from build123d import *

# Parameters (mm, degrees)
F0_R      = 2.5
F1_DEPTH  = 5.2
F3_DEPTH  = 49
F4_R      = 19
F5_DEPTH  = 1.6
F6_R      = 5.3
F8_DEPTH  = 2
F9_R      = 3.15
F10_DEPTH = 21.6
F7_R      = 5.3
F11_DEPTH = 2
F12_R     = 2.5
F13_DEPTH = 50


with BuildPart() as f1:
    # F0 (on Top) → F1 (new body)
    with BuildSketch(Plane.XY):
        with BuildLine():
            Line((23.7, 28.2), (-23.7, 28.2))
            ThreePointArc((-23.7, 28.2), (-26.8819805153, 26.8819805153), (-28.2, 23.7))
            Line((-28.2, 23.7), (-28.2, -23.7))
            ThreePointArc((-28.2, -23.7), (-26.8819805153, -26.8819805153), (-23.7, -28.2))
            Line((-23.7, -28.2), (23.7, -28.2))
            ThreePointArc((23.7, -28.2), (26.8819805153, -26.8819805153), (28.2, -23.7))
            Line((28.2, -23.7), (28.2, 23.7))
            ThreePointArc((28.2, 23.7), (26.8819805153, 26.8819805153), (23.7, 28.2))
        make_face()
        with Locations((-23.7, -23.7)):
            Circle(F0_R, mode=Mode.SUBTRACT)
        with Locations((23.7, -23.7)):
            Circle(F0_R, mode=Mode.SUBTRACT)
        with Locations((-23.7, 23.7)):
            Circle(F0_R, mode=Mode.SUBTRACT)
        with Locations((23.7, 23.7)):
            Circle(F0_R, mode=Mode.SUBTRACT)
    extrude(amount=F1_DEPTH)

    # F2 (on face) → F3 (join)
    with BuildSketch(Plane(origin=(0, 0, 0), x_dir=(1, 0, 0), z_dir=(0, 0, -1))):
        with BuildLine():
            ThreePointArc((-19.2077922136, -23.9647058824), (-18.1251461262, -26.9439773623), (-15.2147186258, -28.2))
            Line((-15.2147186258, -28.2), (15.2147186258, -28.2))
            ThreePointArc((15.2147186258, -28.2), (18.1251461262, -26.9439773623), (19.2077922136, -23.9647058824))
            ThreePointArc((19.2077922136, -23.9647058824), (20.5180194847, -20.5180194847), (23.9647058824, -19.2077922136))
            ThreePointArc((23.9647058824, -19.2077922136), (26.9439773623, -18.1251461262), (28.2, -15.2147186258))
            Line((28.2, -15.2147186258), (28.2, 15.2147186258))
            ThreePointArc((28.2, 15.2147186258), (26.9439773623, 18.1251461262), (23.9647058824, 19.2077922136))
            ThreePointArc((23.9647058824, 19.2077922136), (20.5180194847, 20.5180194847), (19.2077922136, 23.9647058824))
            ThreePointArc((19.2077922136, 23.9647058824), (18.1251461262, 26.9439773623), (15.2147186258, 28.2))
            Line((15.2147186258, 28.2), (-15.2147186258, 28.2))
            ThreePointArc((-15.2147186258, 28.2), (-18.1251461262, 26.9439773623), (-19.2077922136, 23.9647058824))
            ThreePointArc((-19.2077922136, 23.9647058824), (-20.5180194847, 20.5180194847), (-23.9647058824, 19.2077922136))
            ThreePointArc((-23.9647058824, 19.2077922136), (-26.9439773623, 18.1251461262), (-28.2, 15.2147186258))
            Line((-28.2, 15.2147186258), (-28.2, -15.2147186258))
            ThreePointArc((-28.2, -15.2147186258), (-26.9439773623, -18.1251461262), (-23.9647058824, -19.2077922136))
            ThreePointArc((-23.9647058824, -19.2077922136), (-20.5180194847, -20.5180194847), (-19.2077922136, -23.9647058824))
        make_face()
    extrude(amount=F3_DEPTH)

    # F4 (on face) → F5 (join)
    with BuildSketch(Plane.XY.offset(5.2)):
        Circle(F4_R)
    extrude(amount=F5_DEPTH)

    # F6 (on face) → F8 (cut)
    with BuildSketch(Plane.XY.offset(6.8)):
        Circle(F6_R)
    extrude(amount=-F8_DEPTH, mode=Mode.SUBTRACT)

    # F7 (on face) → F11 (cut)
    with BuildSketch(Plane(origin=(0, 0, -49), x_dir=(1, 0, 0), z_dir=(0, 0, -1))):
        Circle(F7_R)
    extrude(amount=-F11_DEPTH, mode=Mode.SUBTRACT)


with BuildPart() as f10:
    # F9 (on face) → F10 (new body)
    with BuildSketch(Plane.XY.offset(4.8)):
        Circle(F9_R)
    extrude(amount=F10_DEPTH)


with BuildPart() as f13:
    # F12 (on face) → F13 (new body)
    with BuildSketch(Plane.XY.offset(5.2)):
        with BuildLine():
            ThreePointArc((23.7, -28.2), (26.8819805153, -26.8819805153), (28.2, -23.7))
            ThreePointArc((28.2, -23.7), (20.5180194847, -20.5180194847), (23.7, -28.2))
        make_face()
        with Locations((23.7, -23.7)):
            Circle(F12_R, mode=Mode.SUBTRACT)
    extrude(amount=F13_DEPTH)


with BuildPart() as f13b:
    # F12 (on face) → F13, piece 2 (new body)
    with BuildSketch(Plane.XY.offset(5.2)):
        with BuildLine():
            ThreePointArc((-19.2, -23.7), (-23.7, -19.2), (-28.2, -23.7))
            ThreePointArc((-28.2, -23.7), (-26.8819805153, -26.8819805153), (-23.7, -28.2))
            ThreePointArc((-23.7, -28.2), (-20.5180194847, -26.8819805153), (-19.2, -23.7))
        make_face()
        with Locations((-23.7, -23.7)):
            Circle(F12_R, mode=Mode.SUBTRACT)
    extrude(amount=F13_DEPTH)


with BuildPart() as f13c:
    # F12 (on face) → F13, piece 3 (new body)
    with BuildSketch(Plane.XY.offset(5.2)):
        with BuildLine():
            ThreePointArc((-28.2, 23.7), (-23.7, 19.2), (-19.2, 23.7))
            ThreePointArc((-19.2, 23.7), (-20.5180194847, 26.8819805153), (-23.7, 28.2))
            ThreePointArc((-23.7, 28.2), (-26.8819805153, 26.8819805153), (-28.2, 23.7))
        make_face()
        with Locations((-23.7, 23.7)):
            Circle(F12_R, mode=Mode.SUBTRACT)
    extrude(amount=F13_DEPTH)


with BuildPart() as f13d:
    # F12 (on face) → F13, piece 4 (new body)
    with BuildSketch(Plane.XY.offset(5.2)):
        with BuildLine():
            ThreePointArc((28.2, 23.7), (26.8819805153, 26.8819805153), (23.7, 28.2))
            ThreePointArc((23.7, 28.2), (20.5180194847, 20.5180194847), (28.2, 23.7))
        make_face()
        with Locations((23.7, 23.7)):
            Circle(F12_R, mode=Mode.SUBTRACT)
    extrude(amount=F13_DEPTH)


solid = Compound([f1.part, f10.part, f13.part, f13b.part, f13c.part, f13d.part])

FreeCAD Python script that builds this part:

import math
import FreeCAD as App
import Part
import Sketcher

V = App.Vector
Q = App.Units.Quantity

doc = App.newDocument("Part")
body = doc.addObject("PartDesign::Body", "Body")

sketch1 = doc.addObject("Sketcher::SketchObject", "Sketch")
body.addObject(sketch1)
sketch1.AttachmentSupport = (doc.XY_Plane, [""])
sketch1.MapMode = "FlatFace"
sketch1.addGeometry(Part.LineSegment(V(23.7, 28.2, 0), V(-23.7, 28.2, 0)), False)
sketch1.addGeometry(Part.ArcOfCircle(Part.Circle(V(-23.7, 23.7, 0), V(0, 0, 1), 4.5), math.radians(90), math.radians(180)), False)
sketch1.addGeometry(Part.LineSegment(V(-28.2, 23.7, 0), V(-28.2, -23.7, 0)), False)
sketch1.addGeometry(Part.ArcOfCircle(Part.Circle(V(-23.7, -23.7, 0), V(0, 0, 1), 4.5), math.radians(180), math.radians(270)), False)
sketch1.addGeometry(Part.LineSegment(V(-23.7, -28.2, 0), V(23.7, -28.2, 0)), False)
sketch1.addGeometry(Part.ArcOfCircle(Part.Circle(V(23.7, -23.7, 0), V(0, 0, 1), 4.5), math.radians(-90), math.radians(0)), False)
sketch1.addGeometry(Part.LineSegment(V(28.2, -23.7, 0), V(28.2, 23.7, 0)), False)
sketch1.addGeometry(Part.ArcOfCircle(Part.Circle(V(23.7, 23.7, 0), V(0, 0, 1), 4.5), math.radians(0), math.radians(90)), False)
sketch1.addGeometry(Part.Circle(V(-23.7, -23.7, 0), V(0, 0, 1), 2.5), False)
sketch1.addGeometry(Part.Circle(V(23.7, -23.7, 0), V(0, 0, 1), 2.5), False)
sketch1.addGeometry(Part.Circle(V(-23.7, 23.7, 0), V(0, 0, 1), 2.5), False)
sketch1.addGeometry(Part.Circle(V(23.7, 23.7, 0), V(0, 0, 1), 2.5), False)
sketch1.addConstraint(Sketcher.Constraint("Tangent", 0, 2, 1, 1))
sketch1.addConstraint(Sketcher.Constraint("Tangent", 1, 2, 2, 1))
sketch1.addConstraint(Sketcher.Constraint("Tangent", 2, 2, 3, 1))
sketch1.addConstraint(Sketcher.Constraint("Tangent", 3, 2, 4, 1))
sketch1.addConstraint(Sketcher.Constraint("Tangent", 4, 2, 5, 1))
sketch1.addConstraint(Sketcher.Constraint("Tangent", 5, 2, 6, 1))
sketch1.addConstraint(Sketcher.Constraint("Tangent", 6, 2, 7, 1))
sketch1.addConstraint(Sketcher.Constraint("Tangent", 7, 2, 0, 1))
sketch1.addConstraint(Sketcher.Constraint("Horizontal", 0))
sketch1.addConstraint(Sketcher.Constraint("Vertical", 2))
sketch1.addConstraint(Sketcher.Constraint("Horizontal", 4))
sketch1.addConstraint(Sketcher.Constraint("Vertical", 6))
sketch1.addConstraint(Sketcher.Constraint("Coincident", 8, 3, 3, 3))
sketch1.addConstraint(Sketcher.Constraint("Coincident", 9, 3, 5, 3))
sketch1.addConstraint(Sketcher.Constraint("Coincident", 10, 3, 1, 3))
sketch1.addConstraint(Sketcher.Constraint("Coincident", 11, 3, 7, 3))
sketch1.addConstraint(Sketcher.Constraint("Equal", 1, 3))
sketch1.addConstraint(Sketcher.Constraint("Equal", 3, 5))
sketch1.addConstraint(Sketcher.Constraint("Equal", 5, 7))
sketch1.addConstraint(Sketcher.Constraint("Equal", 8, 9))
sketch1.addConstraint(Sketcher.Constraint("Equal", 9, 10))
sketch1.addConstraint(Sketcher.Constraint("Equal", 10, 11))
sketch1.addConstraint(Sketcher.Constraint("Symmetric", 1, 3, 5, 3, -1, 1))
sketch1.addConstraint(Sketcher.Constraint("Equal", 4, 2))
sketch1.addConstraint(Sketcher.Constraint("Diameter", 8, Q("5 mm")))
sketch1.addConstraint(Sketcher.Constraint("Radius", 1, Q("4.5 mm")))
sketch1.addConstraint(Sketcher.Constraint("DistanceX", 0, 2, 0, 1, Q("47.4 mm")))
pad1 = doc.addObject("PartDesign::Pad", "Pad")
body.addObject(pad1)
pad1.Profile = sketch1
pad1.Length = 5.2

sketch2 = doc.addObject("Sketcher::SketchObject", "Sketch001")
body.addObject(sketch2)
sketch2.AttachmentSupport = (doc.XY_Plane, [""])
sketch2.MapMode = "FlatFace"
sketch2.addGeometry(Part.ArcOfCircle(Part.Circle(V(-15.214719, 24.2, 0), V(0, 0, 1), 4), math.radians(90), math.radians(183.372287)), False)
sketch2.addGeometry(Part.LineSegment(V(-15.214719, 28.2, 0), V(15.214719, 28.2, 0)), False)
sketch2.addGeometry(Part.ArcOfCircle(Part.Circle(V(15.214719, 24.2, 0), V(0, 0, 1), 4), math.radians(-3.372287), math.radians(90)), False)
sketch2.addGeometry(Part.ArcOfCircle(Part.Circle(V(23.7, 23.7, 0), V(0, 0, 1), 4.5), math.radians(176.627713), math.radians(273.372287)), False)
sketch2.addGeometry(Part.ArcOfCircle(Part.Circle(V(24.2, 15.214719, 0), V(0, 0, 1), 4), math.radians(0), math.radians(93.372287)), False)
sketch2.addGeometry(Part.LineSegment(V(28.2, 15.214719, 0), V(28.2, -15.214719, 0)), False)
sketch2.addGeometry(Part.ArcOfCircle(Part.Circle(V(24.2, -15.214719, 0), V(0, 0, 1), 4), math.radians(-93.372287), math.radians(0)), False)
sketch2.addGeometry(Part.ArcOfCircle(Part.Circle(V(23.7, -23.7, 0), V(0, 0, 1), 4.5), math.radians(86.627713), math.radians(183.372287)), False)
sketch2.addGeometry(Part.ArcOfCircle(Part.Circle(V(15.214719, -24.2, 0), V(0, 0, 1), 4), math.radians(-90), math.radians(3.372287)), False)
sketch2.addGeometry(Part.LineSegment(V(15.214719, -28.2, 0), V(-15.214719, -28.2, 0)), False)
sketch2.addGeometry(Part.ArcOfCircle(Part.Circle(V(-15.214719, -24.2, 0), V(0, 0, 1), 4), math.radians(176.627713), math.radians(270)), False)
sketch2.addGeometry(Part.ArcOfCircle(Part.Circle(V(-23.7, -23.7, 0), V(0, 0, 1), 4.5), math.radians(-3.372287), math.radians(93.372287)), False)
sketch2.addGeometry(Part.ArcOfCircle(Part.Circle(V(-24.2, -15.214719, 0), V(0, 0, 1), 4), math.radians(180), math.radians(273.372287)), False)
sketch2.addGeometry(Part.LineSegment(V(-28.2, -15.214719, 0), V(-28.2, 15.214719, 0)), False)
sketch2.addGeometry(Part.ArcOfCircle(Part.Circle(V(-24.2, 15.214719, 0), V(0, 0, 1), 4), math.radians(86.627713), math.radians(180)), False)
sketch2.addGeometry(Part.ArcOfCircle(Part.Circle(V(-23.7, 23.7, 0), V(0, 0, 1), 4.5), math.radians(-93.372287), math.radians(3.372287)), False)
sketch2.addConstraint(Sketcher.Constraint("Tangent", 0, 1, 1, 1))
sketch2.addConstraint(Sketcher.Constraint("Tangent", 1, 2, 2, 2))
sketch2.addConstraint(Sketcher.Constraint("Tangent", 2, 1, 3, 1))
sketch2.addConstraint(Sketcher.Constraint("Tangent", 3, 2, 4, 2))
sketch2.addConstraint(Sketcher.Constraint("Tangent", 4, 1, 5, 1))
sketch2.addConstraint(Sketcher.Constraint("Tangent", 5, 2, 6, 2))
sketch2.addConstraint(Sketcher.Constraint("Tangent", 6, 1, 7, 1))
sketch2.addConstraint(Sketcher.Constraint("Tangent", 7, 2, 8, 2))
sketch2.addConstraint(Sketcher.Constraint("Tangent", 8, 1, 9, 1))
sketch2.addConstraint(Sketcher.Constraint("Tangent", 9, 2, 10, 2))
sketch2.addConstraint(Sketcher.Constraint("Tangent", 10, 1, 11, 1))
sketch2.addConstraint(Sketcher.Constraint("Tangent", 11, 2, 12, 2))
sketch2.addConstraint(Sketcher.Constraint("Tangent", 12, 1, 13, 1))
sketch2.addConstraint(Sketcher.Constraint("Tangent", 13, 2, 14, 2))
sketch2.addConstraint(Sketcher.Constraint("Tangent", 14, 1, 15, 1))
sketch2.addConstraint(Sketcher.Constraint("Tangent", 15, 2, 0, 2))
sketch2.addConstraint(Sketcher.Constraint("Horizontal", 1))
sketch2.addConstraint(Sketcher.Constraint("Vertical", 5))
sketch2.addConstraint(Sketcher.Constraint("Horizontal", 9))
sketch2.addConstraint(Sketcher.Constraint("Vertical", 13))
sketch2.addConstraint(Sketcher.Constraint("Equal", 0, 2))
sketch2.addConstraint(Sketcher.Constraint("Equal", 2, 4))
sketch2.addConstraint(Sketcher.Constraint("Equal", 4, 6))
sketch2.addConstraint(Sketcher.Constraint("Equal", 3, 7))
sketch2.addConstraint(Sketcher.Constraint("Equal", 6, 8))
sketch2.addConstraint(Sketcher.Constraint("Equal", 8, 10))
sketch2.addConstraint(Sketcher.Constraint("Equal", 7, 11))
sketch2.addConstraint(Sketcher.Constraint("Equal", 10, 12))
sketch2.addConstraint(Sketcher.Constraint("Equal", 12, 14))
sketch2.addConstraint(Sketcher.Constraint("Equal", 11, 15))
sketch2.addConstraint(Sketcher.Constraint("Symmetric", 0, 3, 8, 3, -1, 1))
sketch2.addConstraint(Sketcher.Constraint("Symmetric", 3, 3, 11, 3, -1, 1))
sketch2.addConstraint(Sketcher.Constraint("Symmetric", 6, 3, 14, 3, -1, 1))
sketch2.addConstraint(Sketcher.Constraint("Symmetric", 7, 3, 11, 3, -2))
sketch2.addConstraint(Sketcher.Constraint("Equal", 9, 5))
sketch2.addConstraint(Sketcher.Constraint("Radius", 0, Q("4 mm")))
sketch2.addConstraint(Sketcher.Constraint("Radius", 3, Q("4.5 mm")))
sketch2.addConstraint(Sketcher.Constraint("DistanceY", -1, 1, 0, 3, Q("24.2 mm")))
sketch2.addConstraint(Sketcher.Constraint("DistanceX", -1, 1, 3, 3, Q("23.7 mm")))
sketch2.addConstraint(Sketcher.Constraint("DistanceY", -1, 1, 3, 3, Q("23.7 mm")))
pad2 = doc.addObject("PartDesign::Pad", "Pad001")
body.addObject(pad2)
pad2.Profile = sketch2
pad2.Length = 49
pad2.Reversed = True

sketch3 = doc.addObject("Sketcher::SketchObject", "Sketch002")
body.addObject(sketch3)
sketch3.AttachmentSupport = (doc.XY_Plane, [""])
sketch3.MapMode = "FlatFace"
sketch3.AttachmentOffset = App.Placement(V(0, 0, 5.2), App.Rotation())
sketch3.addGeometry(Part.Circle(V(0, 0, 0), V(0, 0, 1), 19), False)
sketch3.addConstraint(Sketcher.Constraint("Coincident", 0, 3, -1, 1))
sketch3.addConstraint(Sketcher.Constraint("Diameter", 0, Q("38 mm")))
pad3 = doc.addObject("PartDesign::Pad", "Pad002")
body.addObject(pad3)
pad3.Profile = sketch3
pad3.Length = 1.6

sketch4 = doc.addObject("Sketcher::SketchObject", "Sketch003")
body.addObject(sketch4)
sketch4.AttachmentSupport = (doc.XY_Plane, [""])
sketch4.MapMode = "FlatFace"
sketch4.AttachmentOffset = App.Placement(V(0, 0, 6.8), App.Rotation())
sketch4.addGeometry(Part.Circle(V(0, 0, 0), V(0, 0, 1), 5.3), False)
sketch4.addConstraint(Sketcher.Constraint("Coincident", 0, 3, -1, 1))
sketch4.addConstraint(Sketcher.Constraint("Diameter", 0, Q("10.6 mm")))
pocket1 = doc.addObject("PartDesign::Pocket", "Pocket")
body.addObject(pocket1)
pocket1.Profile = sketch4
pocket1.Length = 2

sketch5 = doc.addObject("Sketcher::SketchObject", "Sketch004")
body.addObject(sketch5)
sketch5.AttachmentSupport = (doc.XY_Plane, [""])
sketch5.MapMode = "FlatFace"
sketch5.AttachmentOffset = App.Placement(V(0, 0, -49), App.Rotation())
sketch5.addGeometry(Part.Circle(V(0, 0, 0), V(0, 0, 1), 5.3), False)
sketch5.addConstraint(Sketcher.Constraint("Coincident", 0, 3, -1, 1))
sketch5.addConstraint(Sketcher.Constraint("Diameter", 0, Q("10.6 mm")))
pocket2 = doc.addObject("PartDesign::Pocket", "Pocket001")
body.addObject(pocket2)
pocket2.Profile = sketch5
pocket2.Length = 2
pocket2.Reversed = True
body2 = doc.addObject("PartDesign::Body", "Body001")

sketch6 = doc.addObject("Sketcher::SketchObject", "Sketch005")
body2.addObject(sketch6)
sketch6.AttachmentSupport = (doc.getObject("XY_Plane001"), [""])
sketch6.MapMode = "FlatFace"
sketch6.AttachmentOffset = App.Placement(V(0, 0, 4.8), App.Rotation())
sketch6.addGeometry(Part.Circle(V(0, 0, 0), V(0, 0, 1), 3.15), False)
sketch6.addConstraint(Sketcher.Constraint("Coincident", 0, 3, -1, 1))
sketch6.addConstraint(Sketcher.Constraint("Diameter", 0, Q("6.3 mm")))
pad4 = doc.addObject("PartDesign::Pad", "Pad003")
body2.addObject(pad4)
pad4.Profile = sketch6
pad4.Length = 21.6
body3 = doc.addObject("PartDesign::Body", "Body002")

sketch7 = doc.addObject("Sketcher::SketchObject", "Sketch006")
body3.addObject(sketch7)
sketch7.AttachmentSupport = (doc.getObject("XY_Plane002"), [""])
sketch7.MapMode = "FlatFace"
sketch7.AttachmentOffset = App.Placement(V(0, 0, 5.2), App.Rotation())
sketch7.addGeometry(Part.ArcOfCircle(Part.Circle(V(23.7, -23.7, 0), V(0, 0, 1), 4.5), math.radians(-90), math.radians(0)), False)
sketch7.addGeometry(Part.ArcOfCircle(Part.Circle(V(23.7, -23.7, 0), V(0, 0, 1), 4.5), math.radians(0), math.radians(270)), False)
sketch7.addGeometry(Part.Circle(V(23.7, -23.7, 0), V(0, 0, 1), 2.5), False)
sketch7.addConstraint(Sketcher.Constraint("Tangent", 0, 1, 1, 2))
sketch7.addConstraint(Sketcher.Constraint("Coincident", 1, 1, 0, 2))
sketch7.addConstraint(Sketcher.Constraint("Coincident", 2, 3, 0, 3))
sketch7.addConstraint(Sketcher.Constraint("Horizontal", 2, 3, 1, 1))
sketch7.addConstraint(Sketcher.Constraint("Vertical", 2, 3, 0, 1))
sketch7.addConstraint(Sketcher.Constraint("Diameter", 2, Q("5 mm")))
sketch7.addConstraint(Sketcher.Constraint("Radius", 0, Q("4.5 mm")))
sketch7.addConstraint(Sketcher.Constraint("DistanceX", -1, 1, 0, 3, Q("23.7 mm")))
sketch7.addConstraint(Sketcher.Constraint("DistanceY", 0, 3, -1, 1, Q("23.7 mm")))
pad5 = doc.addObject("PartDesign::Pad", "Pad004")
body3.addObject(pad5)
pad5.Profile = sketch7
pad5.Length = 50
body4 = doc.addObject("PartDesign::Body", "Body003")

sketch8 = doc.addObject("Sketcher::SketchObject", "Sketch007")
body4.addObject(sketch8)
sketch8.AttachmentSupport = (doc.getObject("XY_Plane003"), [""])
sketch8.MapMode = "FlatFace"
sketch8.AttachmentOffset = App.Placement(V(0, 0, 5.2), App.Rotation())
sketch8.addGeometry(Part.ArcOfCircle(Part.Circle(V(-23.7, -23.7, 0), V(0, 0, 1), 4.5), math.radians(0), math.radians(180)), False)
sketch8.addGeometry(Part.ArcOfCircle(Part.Circle(V(-23.7, -23.7, 0), V(0, 0, 1), 4.5), math.radians(180), math.radians(270)), False)
sketch8.addGeometry(Part.ArcOfCircle(Part.Circle(V(-23.7, -23.7, 0), V(0, 0, 1), 4.5), math.radians(-90), math.radians(0)), False)
sketch8.addGeometry(Part.Circle(V(-23.7, -23.7, 0), V(0, 0, 1), 2.5), False)
sketch8.addConstraint(Sketcher.Constraint("Tangent", 0, 2, 1, 1))
sketch8.addConstraint(Sketcher.Constraint("Tangent", 1, 2, 2, 1))
sketch8.addConstraint(Sketcher.Constraint("Tangent", 2, 2, 0, 1))
sketch8.addConstraint(Sketcher.Constraint("Coincident", 3, 3, 0, 3))
sketch8.addConstraint(Sketcher.Constraint("Horizontal", 3, 3, 0, 2))
sketch8.addConstraint(Sketcher.Constraint("Horizontal", 0, 2, 2, 2))
sketch8.addConstraint(Sketcher.Constraint("Vertical", 3, 3, 1, 2))
sketch8.addConstraint(Sketcher.Constraint("Diameter", 3, Q("5 mm")))
sketch8.addConstraint(Sketcher.Constraint("Radius", 0, Q("4.5 mm")))
sketch8.addConstraint(Sketcher.Constraint("DistanceX", 0, 3, -1, 1, Q("23.7 mm")))
sketch8.addConstraint(Sketcher.Constraint("DistanceY", 0, 3, -1, 1, Q("23.7 mm")))
pad6 = doc.addObject("PartDesign::Pad", "Pad005")
body4.addObject(pad6)
pad6.Profile = sketch8
pad6.Length = 50
body5 = doc.addObject("PartDesign::Body", "Body004")

sketch9 = doc.addObject("Sketcher::SketchObject", "Sketch008")
body5.addObject(sketch9)
sketch9.AttachmentSupport = (doc.getObject("XY_Plane004"), [""])
sketch9.MapMode = "FlatFace"
sketch9.AttachmentOffset = App.Placement(V(0, 0, 5.2), App.Rotation())
sketch9.addGeometry(Part.ArcOfCircle(Part.Circle(V(-23.7, 23.7, 0), V(0, 0, 1), 4.5), math.radians(180), math.radians(360)), False)
sketch9.addGeometry(Part.ArcOfCircle(Part.Circle(V(-23.7, 23.7, 0), V(0, 0, 1), 4.5), math.radians(0), math.radians(90)), False)
sketch9.addGeometry(Part.ArcOfCircle(Part.Circle(V(-23.7, 23.7, 0), V(0, 0, 1), 4.5), math.radians(90), math.radians(180)), False)
sketch9.addGeometry(Part.Circle(V(-23.7, 23.7, 0), V(0, 0, 1), 2.5), False)
sketch9.addConstraint(Sketcher.Constraint("Tangent", 0, 2, 1, 1))
sketch9.addConstraint(Sketcher.Constraint("Tangent", 1, 2, 2, 1))
sketch9.addConstraint(Sketcher.Constraint("Tangent", 2, 2, 0, 1))
sketch9.addConstraint(Sketcher.Constraint("Coincident", 3, 3, 0, 3))
sketch9.addConstraint(Sketcher.Constraint("Horizontal", 3, 3, 0, 2))
sketch9.addConstraint(Sketcher.Constraint("Horizontal", 0, 2, 2, 2))
sketch9.addConstraint(Sketcher.Constraint("Vertical", 3, 3, 1, 2))
sketch9.addConstraint(Sketcher.Constraint("Diameter", 3, Q("5 mm")))
sketch9.addConstraint(Sketcher.Constraint("Radius", 0, Q("4.5 mm")))
sketch9.addConstraint(Sketcher.Constraint("DistanceX", 0, 3, -1, 1, Q("23.7 mm")))
sketch9.addConstraint(Sketcher.Constraint("DistanceY", -1, 1, 0, 3, Q("23.7 mm")))
pad7 = doc.addObject("PartDesign::Pad", "Pad006")
body5.addObject(pad7)
pad7.Profile = sketch9
pad7.Length = 50
body6 = doc.addObject("PartDesign::Body", "Body005")

sketch10 = doc.addObject("Sketcher::SketchObject", "Sketch009")
body6.addObject(sketch10)
sketch10.AttachmentSupport = (doc.getObject("XY_Plane005"), [""])
sketch10.MapMode = "FlatFace"
sketch10.AttachmentOffset = App.Placement(V(0, 0, 5.2), App.Rotation())
sketch10.addGeometry(Part.ArcOfCircle(Part.Circle(V(23.7, 23.7, 0), V(0, 0, 1), 4.5), math.radians(0), math.radians(90)), False)
sketch10.addGeometry(Part.ArcOfCircle(Part.Circle(V(23.7, 23.7, 0), V(0, 0, 1), 4.5), math.radians(90), math.radians(360)), False)
sketch10.addGeometry(Part.Circle(V(23.7, 23.7, 0), V(0, 0, 1), 2.5), False)
sketch10.addConstraint(Sketcher.Constraint("Tangent", 0, 1, 1, 2))
sketch10.addConstraint(Sketcher.Constraint("Coincident", 1, 1, 0, 2))
sketch10.addConstraint(Sketcher.Constraint("Coincident", 2, 3, 0, 3))
sketch10.addConstraint(Sketcher.Constraint("Horizontal", 2, 3, 0, 1))
sketch10.addConstraint(Sketcher.Constraint("Vertical", 2, 3, 1, 1))
sketch10.addConstraint(Sketcher.Constraint("Diameter", 2, Q("5 mm")))
sketch10.addConstraint(Sketcher.Constraint("Radius", 0, Q("4.5 mm")))
sketch10.addConstraint(Sketcher.Constraint("DistanceX", -1, 1, 0, 3, Q("23.7 mm")))
sketch10.addConstraint(Sketcher.Constraint("DistanceY", -1, 1, 0, 3, Q("23.7 mm")))
pad8 = doc.addObject("PartDesign::Pad", "Pad007")
body6.addObject(pad8)
pad8.Profile = sketch10
pad8.Length = 50

doc.recompute()
